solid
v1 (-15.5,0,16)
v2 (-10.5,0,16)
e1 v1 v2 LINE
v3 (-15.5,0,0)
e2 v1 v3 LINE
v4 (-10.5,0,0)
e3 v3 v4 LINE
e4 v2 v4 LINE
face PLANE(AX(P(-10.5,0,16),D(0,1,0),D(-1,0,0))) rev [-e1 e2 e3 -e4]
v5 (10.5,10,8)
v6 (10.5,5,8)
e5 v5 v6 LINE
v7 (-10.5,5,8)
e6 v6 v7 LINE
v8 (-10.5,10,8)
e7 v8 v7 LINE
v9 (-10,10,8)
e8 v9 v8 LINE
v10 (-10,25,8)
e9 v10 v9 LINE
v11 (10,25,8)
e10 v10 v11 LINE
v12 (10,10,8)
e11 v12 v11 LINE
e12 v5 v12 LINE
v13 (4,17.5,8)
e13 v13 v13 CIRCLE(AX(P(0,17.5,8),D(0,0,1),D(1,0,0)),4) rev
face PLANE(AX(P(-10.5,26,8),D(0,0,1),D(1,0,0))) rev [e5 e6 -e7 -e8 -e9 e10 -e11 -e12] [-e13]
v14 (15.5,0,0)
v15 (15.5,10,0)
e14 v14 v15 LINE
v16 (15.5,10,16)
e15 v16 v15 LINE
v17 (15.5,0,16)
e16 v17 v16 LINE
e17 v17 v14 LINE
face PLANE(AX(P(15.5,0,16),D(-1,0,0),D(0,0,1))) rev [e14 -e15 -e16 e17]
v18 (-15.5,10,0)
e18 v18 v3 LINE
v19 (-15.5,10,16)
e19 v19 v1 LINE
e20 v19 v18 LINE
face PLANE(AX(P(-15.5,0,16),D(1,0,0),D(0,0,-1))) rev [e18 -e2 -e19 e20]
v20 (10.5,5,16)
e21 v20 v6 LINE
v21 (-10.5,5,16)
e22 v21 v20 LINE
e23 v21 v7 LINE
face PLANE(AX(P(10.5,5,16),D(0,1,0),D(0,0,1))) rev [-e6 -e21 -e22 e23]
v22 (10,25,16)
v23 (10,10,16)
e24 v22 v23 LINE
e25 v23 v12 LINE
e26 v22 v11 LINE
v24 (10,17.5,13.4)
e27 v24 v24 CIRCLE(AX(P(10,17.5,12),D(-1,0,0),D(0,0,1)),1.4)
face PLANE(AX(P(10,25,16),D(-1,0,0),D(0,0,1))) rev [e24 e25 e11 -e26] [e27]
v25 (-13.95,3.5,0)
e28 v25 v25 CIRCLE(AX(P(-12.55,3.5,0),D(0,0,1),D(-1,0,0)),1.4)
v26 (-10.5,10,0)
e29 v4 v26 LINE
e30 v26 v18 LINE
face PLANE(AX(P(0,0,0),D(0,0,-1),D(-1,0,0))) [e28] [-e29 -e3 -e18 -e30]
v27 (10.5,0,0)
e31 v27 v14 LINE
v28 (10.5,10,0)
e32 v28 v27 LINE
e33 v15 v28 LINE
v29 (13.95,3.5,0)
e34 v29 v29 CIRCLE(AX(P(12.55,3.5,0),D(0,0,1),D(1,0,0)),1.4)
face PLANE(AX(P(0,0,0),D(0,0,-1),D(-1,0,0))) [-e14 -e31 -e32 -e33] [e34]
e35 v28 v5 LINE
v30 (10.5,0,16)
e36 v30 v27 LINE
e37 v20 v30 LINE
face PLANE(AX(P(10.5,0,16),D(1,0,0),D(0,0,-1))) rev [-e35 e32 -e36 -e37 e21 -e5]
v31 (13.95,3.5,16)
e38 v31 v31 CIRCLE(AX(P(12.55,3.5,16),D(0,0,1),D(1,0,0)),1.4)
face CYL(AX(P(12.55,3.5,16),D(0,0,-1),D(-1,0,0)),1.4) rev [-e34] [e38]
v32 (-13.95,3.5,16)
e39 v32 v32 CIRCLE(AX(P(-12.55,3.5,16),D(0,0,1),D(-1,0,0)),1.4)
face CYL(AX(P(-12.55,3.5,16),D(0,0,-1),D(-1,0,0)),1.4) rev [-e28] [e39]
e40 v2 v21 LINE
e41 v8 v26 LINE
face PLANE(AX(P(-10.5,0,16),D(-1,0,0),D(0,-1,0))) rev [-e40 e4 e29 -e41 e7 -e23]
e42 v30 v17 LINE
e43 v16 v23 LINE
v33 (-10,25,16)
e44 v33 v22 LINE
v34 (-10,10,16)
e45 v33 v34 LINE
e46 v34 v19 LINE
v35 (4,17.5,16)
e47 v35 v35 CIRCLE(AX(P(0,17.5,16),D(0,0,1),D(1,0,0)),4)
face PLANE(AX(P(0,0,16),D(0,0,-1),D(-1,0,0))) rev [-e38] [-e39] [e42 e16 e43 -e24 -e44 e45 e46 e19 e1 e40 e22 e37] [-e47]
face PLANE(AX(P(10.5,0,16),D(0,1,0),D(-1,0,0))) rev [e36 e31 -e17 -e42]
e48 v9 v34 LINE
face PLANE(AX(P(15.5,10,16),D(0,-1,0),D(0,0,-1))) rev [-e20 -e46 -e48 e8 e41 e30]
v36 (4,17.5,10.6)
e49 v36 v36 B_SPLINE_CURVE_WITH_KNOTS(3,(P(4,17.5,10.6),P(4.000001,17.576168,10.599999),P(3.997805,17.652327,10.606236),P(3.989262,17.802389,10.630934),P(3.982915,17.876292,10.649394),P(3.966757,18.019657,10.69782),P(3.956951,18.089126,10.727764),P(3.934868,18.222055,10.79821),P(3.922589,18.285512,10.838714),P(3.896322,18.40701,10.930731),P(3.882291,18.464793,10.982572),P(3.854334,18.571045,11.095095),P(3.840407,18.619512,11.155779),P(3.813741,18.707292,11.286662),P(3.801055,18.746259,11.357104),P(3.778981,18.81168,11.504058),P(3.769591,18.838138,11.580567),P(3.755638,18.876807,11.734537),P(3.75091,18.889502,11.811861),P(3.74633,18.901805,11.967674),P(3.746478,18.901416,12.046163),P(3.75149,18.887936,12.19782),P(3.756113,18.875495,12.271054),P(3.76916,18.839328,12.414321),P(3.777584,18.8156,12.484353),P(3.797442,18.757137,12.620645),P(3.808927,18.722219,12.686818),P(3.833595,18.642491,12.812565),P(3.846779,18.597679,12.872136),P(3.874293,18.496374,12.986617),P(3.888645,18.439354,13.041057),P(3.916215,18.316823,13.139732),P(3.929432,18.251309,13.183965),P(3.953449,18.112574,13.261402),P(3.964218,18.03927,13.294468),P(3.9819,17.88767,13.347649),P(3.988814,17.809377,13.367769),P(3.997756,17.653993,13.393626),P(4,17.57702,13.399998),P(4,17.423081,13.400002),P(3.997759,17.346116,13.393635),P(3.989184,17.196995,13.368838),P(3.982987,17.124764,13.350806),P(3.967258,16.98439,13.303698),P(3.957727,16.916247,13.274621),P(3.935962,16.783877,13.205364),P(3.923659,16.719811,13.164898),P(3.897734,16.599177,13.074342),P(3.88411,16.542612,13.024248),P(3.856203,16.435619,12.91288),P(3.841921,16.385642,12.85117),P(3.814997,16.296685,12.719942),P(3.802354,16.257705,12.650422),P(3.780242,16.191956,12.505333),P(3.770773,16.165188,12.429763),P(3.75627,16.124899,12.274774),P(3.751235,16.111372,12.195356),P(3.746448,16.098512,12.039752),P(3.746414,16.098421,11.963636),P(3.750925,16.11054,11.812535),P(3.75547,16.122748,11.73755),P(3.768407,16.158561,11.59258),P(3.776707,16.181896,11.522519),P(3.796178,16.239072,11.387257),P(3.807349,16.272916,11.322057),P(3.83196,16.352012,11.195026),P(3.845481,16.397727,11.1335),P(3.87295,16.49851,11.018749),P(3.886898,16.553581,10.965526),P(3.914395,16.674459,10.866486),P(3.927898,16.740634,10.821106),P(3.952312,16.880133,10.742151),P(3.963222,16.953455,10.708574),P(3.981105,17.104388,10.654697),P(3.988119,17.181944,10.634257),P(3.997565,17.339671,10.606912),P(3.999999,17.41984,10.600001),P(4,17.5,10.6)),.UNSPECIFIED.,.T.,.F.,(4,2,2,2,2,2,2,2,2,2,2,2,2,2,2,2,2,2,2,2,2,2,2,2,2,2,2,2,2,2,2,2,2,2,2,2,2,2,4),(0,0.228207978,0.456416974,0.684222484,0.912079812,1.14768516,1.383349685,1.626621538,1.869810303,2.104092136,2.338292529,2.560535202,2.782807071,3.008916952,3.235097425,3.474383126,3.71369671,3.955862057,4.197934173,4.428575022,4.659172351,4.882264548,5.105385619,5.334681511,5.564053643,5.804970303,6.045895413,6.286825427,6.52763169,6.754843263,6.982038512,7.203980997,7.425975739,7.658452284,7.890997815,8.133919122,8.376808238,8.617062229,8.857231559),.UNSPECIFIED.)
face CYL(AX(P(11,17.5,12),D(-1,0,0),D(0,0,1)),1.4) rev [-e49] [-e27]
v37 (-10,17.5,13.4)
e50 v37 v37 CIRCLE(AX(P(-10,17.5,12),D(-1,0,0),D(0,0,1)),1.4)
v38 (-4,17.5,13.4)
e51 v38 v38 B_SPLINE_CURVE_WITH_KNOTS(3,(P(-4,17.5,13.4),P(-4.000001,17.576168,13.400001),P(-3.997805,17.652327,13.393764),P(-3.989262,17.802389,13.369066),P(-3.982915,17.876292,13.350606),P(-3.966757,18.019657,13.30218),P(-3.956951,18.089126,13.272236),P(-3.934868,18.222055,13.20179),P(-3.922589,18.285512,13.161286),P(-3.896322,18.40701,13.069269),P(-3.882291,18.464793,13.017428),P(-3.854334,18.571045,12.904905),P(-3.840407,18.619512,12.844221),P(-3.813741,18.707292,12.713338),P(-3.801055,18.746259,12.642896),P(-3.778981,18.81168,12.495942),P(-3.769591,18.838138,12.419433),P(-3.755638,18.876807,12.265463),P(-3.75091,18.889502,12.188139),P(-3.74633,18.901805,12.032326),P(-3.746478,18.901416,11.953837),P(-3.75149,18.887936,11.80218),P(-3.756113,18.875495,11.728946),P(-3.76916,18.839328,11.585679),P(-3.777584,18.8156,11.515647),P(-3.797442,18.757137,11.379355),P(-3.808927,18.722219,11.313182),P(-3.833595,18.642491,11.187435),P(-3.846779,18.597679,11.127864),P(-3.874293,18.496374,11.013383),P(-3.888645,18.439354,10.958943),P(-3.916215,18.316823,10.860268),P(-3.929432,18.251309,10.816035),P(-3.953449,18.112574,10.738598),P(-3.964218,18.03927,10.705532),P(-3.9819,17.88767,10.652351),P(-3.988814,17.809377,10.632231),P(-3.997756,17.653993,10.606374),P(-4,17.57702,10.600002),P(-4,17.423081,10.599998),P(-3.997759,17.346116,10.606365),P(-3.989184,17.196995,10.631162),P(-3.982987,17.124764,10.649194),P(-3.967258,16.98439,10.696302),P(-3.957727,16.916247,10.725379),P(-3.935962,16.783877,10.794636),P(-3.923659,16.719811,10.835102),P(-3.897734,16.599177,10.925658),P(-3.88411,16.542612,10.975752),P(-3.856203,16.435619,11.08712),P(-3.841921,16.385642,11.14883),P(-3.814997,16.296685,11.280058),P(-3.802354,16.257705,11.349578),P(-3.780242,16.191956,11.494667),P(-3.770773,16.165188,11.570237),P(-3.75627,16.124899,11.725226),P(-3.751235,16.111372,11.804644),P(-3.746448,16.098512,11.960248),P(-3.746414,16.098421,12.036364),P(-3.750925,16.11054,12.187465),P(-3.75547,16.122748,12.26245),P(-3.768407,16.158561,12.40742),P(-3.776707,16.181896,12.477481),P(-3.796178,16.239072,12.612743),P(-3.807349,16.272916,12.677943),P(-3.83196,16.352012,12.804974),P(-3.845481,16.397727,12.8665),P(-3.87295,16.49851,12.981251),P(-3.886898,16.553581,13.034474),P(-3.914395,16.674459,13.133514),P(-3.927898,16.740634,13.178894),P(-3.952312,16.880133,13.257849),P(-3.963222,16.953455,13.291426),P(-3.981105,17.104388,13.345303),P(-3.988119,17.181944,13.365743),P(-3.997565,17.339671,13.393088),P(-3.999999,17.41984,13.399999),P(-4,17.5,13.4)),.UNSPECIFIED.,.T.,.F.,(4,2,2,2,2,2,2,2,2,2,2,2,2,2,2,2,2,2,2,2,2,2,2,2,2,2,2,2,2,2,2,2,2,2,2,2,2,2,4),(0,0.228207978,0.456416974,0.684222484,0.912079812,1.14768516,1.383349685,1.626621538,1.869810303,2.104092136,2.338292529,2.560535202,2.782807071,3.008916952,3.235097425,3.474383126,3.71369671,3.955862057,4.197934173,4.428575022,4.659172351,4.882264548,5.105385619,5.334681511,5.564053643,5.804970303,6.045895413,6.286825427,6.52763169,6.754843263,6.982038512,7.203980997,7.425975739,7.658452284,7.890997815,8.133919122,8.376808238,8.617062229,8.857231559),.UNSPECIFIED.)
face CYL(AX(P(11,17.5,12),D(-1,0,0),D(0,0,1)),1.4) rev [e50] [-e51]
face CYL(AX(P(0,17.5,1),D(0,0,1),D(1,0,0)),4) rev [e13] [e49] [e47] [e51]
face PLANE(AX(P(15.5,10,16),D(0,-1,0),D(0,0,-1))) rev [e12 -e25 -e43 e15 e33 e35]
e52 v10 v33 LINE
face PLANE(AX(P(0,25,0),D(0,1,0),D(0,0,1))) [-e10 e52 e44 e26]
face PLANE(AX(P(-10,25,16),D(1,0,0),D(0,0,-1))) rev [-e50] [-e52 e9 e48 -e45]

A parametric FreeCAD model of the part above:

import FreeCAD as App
import Part
import Sketcher
Q = App.Units.Quantity

doc = App.newDocument("Part")
params = doc.addObject("Spreadsheet::Sheet", "Params")
for row, (alias, value) in enumerate([
    ("sketch1_diameter", "2.8 mm"),
    ("sketch1_width", "31 mm"),
    ("sketch1_width2", "5 mm"),
    ("sketch1_height", "10 mm"),
    ("pad1_length", "16 mm"),
    ("sketch2_width", "20 mm"),
    ("sketch2_height", "16 mm"),
    ("pad2_length", "15 mm"),
    ("sketch3_diameter", "8 mm"),
    ("pocket1_length", "15 mm"),
    ("sketch4_width", "21 mm"),
    ("sketch4_height", "8 mm"),
    ("pocket2_length", "21 mm"),
    ("sketch5_diameter", "2.8 mm"),
    ("pocket3_length", "21 mm"),
], start=1):
    params.set(f"A{row}", alias)
    params.set(f"B{row}", "=" + value)
    params.setAlias(f"B{row}", alias)

body = doc.addObject("PartDesign::Body", "Body")

# Sketch on XY plane
sketch1 = body.newObject("Sketcher::SketchObject", "Sketch")
sketch1.AttachmentSupport = (doc.getObject("XY_Plane"), [""])
sketch1.MapMode = "FlatFace"
sketch1.addGeometry(Part.LineSegment(App.Vector(15.5, 10, 0), App.Vector(-15.5, 10, 0)), False)
sketch1.addGeometry(Part.LineSegment(App.Vector(-15.5, 10, 0), App.Vector(-15.5, 0, 0)), False)
sketch1.addGeometry(Part.LineSegment(App.Vector(-15.5, 0, 0), App.Vector(-10.5, 0, 0)), False)
sketch1.addGeometry(Part.LineSegment(App.Vector(-10.5, 0, 0), App.Vector(-10.5, 5, 0)), False)
sketch1.addGeometry(Part.LineSegment(App.Vector(-10.5, 5, 0), App.Vector(10.5, 5, 0)), False)
sketch1.addGeometry(Part.LineSegment(App.Vector(10.5, 5, 0), App.Vector(10.5, 0, 0)), False)
sketch1.addGeometry(Part.LineSegment(App.Vector(10.5, 0, 0), App.Vector(15.5, 0, 0)), False)
sketch1.addGeometry(Part.LineSegment(App.Vector(15.5, 0, 0), App.Vector(15.5, 10, 0)), False)
sketch1.addGeometry(Part.Circle(App.Vector(-12.55, 3.5, 0), App.Vector(0, 0, 1), 1.4), False)
sketch1.addGeometry(Part.Circle(App.Vector(12.55, 3.5, 0), App.Vector(0, 0, 1), 1.4), False)
sketch1.addConstraint(Sketcher.Constraint("Coincident", 0, 2, 1, 1))
sketch1.addConstraint(Sketcher.Constraint("Coincident", 1, 2, 2, 1))
sketch1.addConstraint(Sketcher.Constraint("Coincident", 2, 2, 3, 1))
sketch1.addConstraint(Sketcher.Constraint("Coincident", 3, 2, 4, 1))
sketch1.addConstraint(Sketcher.Constraint("Coincident", 4, 2, 5, 1))
sketch1.addConstraint(Sketcher.Constraint("Coincident", 5, 2, 6, 1))
sketch1.addConstraint(Sketcher.Constraint("Coincident", 6, 2, 7, 1))
sketch1.addConstraint(Sketcher.Constraint("Coincident", 7, 2, 0, 1))
sketch1.addConstraint(Sketcher.Constraint("Horizontal", 0))
sketch1.addConstraint(Sketcher.Constraint("Vertical", 1))
sketch1.addConstraint(Sketcher.Constraint("Horizontal", 2))
sketch1.addConstraint(Sketcher.Constraint("Vertical", 3))
sketch1.addConstraint(Sketcher.Constraint("Horizontal", 4))
sketch1.addConstraint(Sketcher.Constraint("Vertical", 5))
sketch1.addConstraint(Sketcher.Constraint("Horizontal", 6))
sketch1.addConstraint(Sketcher.Constraint("Vertical", 7))
sketch1.addConstraint(Sketcher.Constraint("Equal", 8, 9))
sketch1.addConstraint(Sketcher.Constraint("Symmetric", 2, 2, 5, 2, -1, 1))
sketch1.addConstraint(Sketcher.Constraint("Symmetric", 8, 3, 9, 3, -2))
sketch1.addConstraint(Sketcher.Constraint("Symmetric", 1, 2, 6, 2, -2))
sketch1.addConstraint(Sketcher.Constraint("Equal", 6, 3))
sketch1.addConstraint(Sketcher.Constraint("Diameter", 8, Q("2.8 mm")))
sketch1.addConstraint(Sketcher.Constraint("DistanceX", 0, 2, 0, 1, Q("31 mm")))
sketch1.addConstraint(Sketcher.Constraint("DistanceX", 2, 1, 2, 2, Q("5 mm")))
sketch1.addConstraint(Sketcher.Constraint("DistanceY", 1, 2, 1, 1, Q("10 mm")))
sketch1.addConstraint(Sketcher.Constraint("DistanceY", -1, 1, 8, 3, Q("3.5 mm")))
sketch1.addConstraint(Sketcher.Constraint("DistanceX", 8, 3, 9, 3, Q("25.1 mm")))
sketch1.setExpression("Constraints[21]", "Params.sketch1_diameter")
sketch1.setExpression("Constraints[22]", "Params.sketch1_width")
sketch1.setExpression("Constraints[23]", "Params.sketch1_width2")
sketch1.setExpression("Constraints[24]", "Params.sketch1_height")
pad1 = body.newObject("PartDesign::Pad", "Pad")
pad1.Profile = sketch1
pad1.setExpression("Length", "Params.pad1_length")

# Sketch on XZ plane
sketch2 = body.newObject("Sketcher::SketchObject", "Sketch001")
sketch2.AttachmentSupport = (doc.getObject("XZ_Plane"), [""])
sketch2.MapMode = "FlatFace"
sketch2.AttachmentOffset = App.Placement(App.Vector(0, 0, -10), App.Rotation())
sketch2.addGeometry(Part.LineSegment(App.Vector(-10, 0, 0), App.Vector(-10, 16, 0)), False)
sketch2.addGeometry(Part.LineSegment(App.Vector(-10, 16, 0), App.Vector(10, 16, 0)), False)
sketch2.addGeometry(Part.LineSegment(App.Vector(10, 16, 0), App.Vector(10, 0, 0)), False)
sketch2.addGeometry(Part.LineSegment(App.Vector(10, 0, 0), App.Vector(-10, 0, 0)), False)
sketch2.addConstraint(Sketcher.Constraint("Coincident", 0, 2, 1, 1))
sketch2.addConstraint(Sketcher.Constraint("Coincident", 1, 2, 2, 1))
sketch2.addConstraint(Sketcher.Constraint("Coincident", 2, 2, 3, 1))
sketch2.addConstraint(Sketcher.Constraint("Coincident", 3, 2, 0, 1))
sketch2.addConstraint(Sketcher.Constraint("Vertical", 0))
sketch2.addConstraint(Sketcher.Constraint("Horizontal", 1))
sketch2.addConstraint(Sketcher.Constraint("Vertical", 2))
sketch2.addConstraint(Sketcher.Constraint("Horizontal", 3))
sketch2.addConstraint(Sketcher.Constraint("Symmetric", 2, 2, 3, 2, -1, 1))
sketch2.addConstraint(Sketcher.Constraint("DistanceX", 1, 1, 1, 2, Q("20 mm")))
sketch2.addConstraint(Sketcher.Constraint("DistanceY", 0, 1, 0, 2, Q("16 mm")))
sketch2.setExpression("Constraints[9]", "Params.sketch2_width")
sketch2.setExpression("Constraints[10]", "Params.sketch2_height")
pad2 = body.newObject("PartDesign::Pad", "Pad001")
pad2.Profile = sketch2
pad2.setExpression("Length", "Params.pad2_length")
pad2.Reversed = True

# Sketch on XY plane
sketch3 = body.newObject("Sketcher::SketchObject", "Sketch002")
sketch3.AttachmentSupport = (doc.getObject("XY_Plane"), [""])
sketch3.MapMode = "FlatFace"
sketch3.AttachmentOffset = App.Placement(App.Vector(0, 0, 16), App.Rotation())
sketch3.addGeometry(Part.Circle(App.Vector(0, 17.5, 0), App.Vector(0, 0, 1), 4), False)
sketch3.addConstraint(Sketcher.Constraint("PointOnObject", 0, 3, -2))
sketch3.addConstraint(Sketcher.Constraint("Diameter", 0, Q("8 mm")))
sketch3.addConstraint(Sketcher.Constraint("DistanceY", -1, 1, 0, 3, Q("17.5 mm")))
sketch3.setExpression("Constraints[1]", "Params.sketch3_diameter")
pocket1 = body.newObject("PartDesign::Pocket", "Pocket")
pocket1.Profile = sketch3
pocket1.setExpression("Length", "Params.pocket1_length")

# Sketch on XZ plane
sketch4 = body.newObject("Sketcher::SketchObject", "Sketch003")
sketch4.AttachmentSupport = (doc.getObject("XZ_Plane"), [""])
sketch4.MapMode = "FlatFace"
sketch4.AttachmentOffset = App.Placement(App.Vector(0, 0, -5), App.Rotation())
sketch4.addGeometry(Part.LineSegment(App.Vector(-10.5, 8, 0), App.Vector(-10.5, 0, 0)), False)
sketch4.addGeometry(Part.LineSegment(App.Vector(-10.5, 0, 0), App.Vector(10.5, 0, 0)), False)
sketch4.addGeometry(Part.LineSegment(App.Vector(10.5, 0, 0), App.Vector(10.5, 8, 0)), False)
sketch4.addGeometry(Part.LineSegment(App.Vector(10.5, 8, 0), App.Vector(-10.5, 8, 0)), False)
sketch4.addConstraint(Sketcher.Constraint("Coincident", 0, 2, 1, 1))
sketch4.addConstraint(Sketcher.Constraint("Coincident", 1, 2, 2, 1))
sketch4.addConstraint(Sketcher.Constraint("Coincident", 2, 2, 3, 1))
sketch4.addConstraint(Sketcher.Constraint("Coincident", 3, 2, 0, 1))
sketch4.addConstraint(Sketcher.Constraint("Vertical", 0))
sketch4.addConstraint(Sketcher.Constraint("Horizontal", 1))
sketch4.addConstraint(Sketcher.Constraint("Vertical", 2))
sketch4.addConstraint(Sketcher.Constraint("Horizontal", 3))
sketch4.addConstraint(Sketcher.Constraint("Symmetric", 0, 2, 1, 2, -1, 1))
sketch4.addConstraint(Sketcher.Constraint("DistanceX", 1, 1, 1, 2, Q("21 mm")))
sketch4.addConstraint(Sketcher.Constraint("DistanceY", 0, 2, 0, 1, Q("8 mm")))
sketch4.setExpression("Constraints[9]", "Params.sketch4_width")
sketch4.setExpression("Constraints[10]", "Params.sketch4_height")
pocket2 = body.newObject("PartDesign::Pocket", "Pocket001")
pocket2.Profile = sketch4
pocket2.setExpression("Length", "Params.pocket2_length")

# Sketch on YZ plane
sketch5 = body.newObject("Sketcher::SketchObject", "Sketch004")
sketch5.AttachmentSupport = (doc.getObject("YZ_Plane"), [""])
sketch5.MapMode = "FlatFace"
sketch5.AttachmentOffset = App.Placement(App.Vector(0, 0, -10), App.Rotation())
sketch5.addGeometry(Part.Circle(App.Vector(17.5, 12, 0), App.Vector(0, 0, 1), 1.4), False)
sketch5.addConstraint(Sketcher.Constraint("Diameter", 0, Q("2.8 mm")))
sketch5.addConstraint(Sketcher.Constraint("DistanceY", -1, 1, 0, 3, Q("12 mm")))
sketch5.addConstraint(Sketcher.Constraint("DistanceX", -1, 1, 0, 3, Q("17.5 mm")))
sketch5.setExpression("Constraints[0]", "Params.sketch5_diameter")
pocket3 = body.newObject("PartDesign::Pocket", "Pocket002")
pocket3.Profile = sketch5
pocket3.setExpression("Length", "Params.pocket3_length")
pocket3.Reversed = True

doc.recompute()
